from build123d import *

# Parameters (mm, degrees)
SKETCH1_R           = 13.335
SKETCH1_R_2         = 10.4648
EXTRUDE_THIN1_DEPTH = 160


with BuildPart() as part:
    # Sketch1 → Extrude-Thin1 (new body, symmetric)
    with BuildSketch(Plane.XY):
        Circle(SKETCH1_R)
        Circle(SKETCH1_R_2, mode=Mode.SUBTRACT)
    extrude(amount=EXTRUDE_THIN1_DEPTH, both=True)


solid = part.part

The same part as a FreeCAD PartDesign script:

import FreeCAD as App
import Part
import Sketcher
Q = App.Units.Quantity

doc = App.newDocument("Part")
params = doc.addObject("Spreadsheet::Sheet", "Params")
for row, (alias, value) in enumerate([
    ("sketch1_diameter", "1.05 in"),
    ("sketch1_diameter2", "0.824 in"),
    ("pad1_length", "320 mm"),
], start=1):
    params.set(f"A{row}", alias)
    params.set(f"B{row}", "=" + value)
    params.setAlias(f"B{row}", alias)

body = doc.addObject("PartDesign::Body", "Body")

# Sketch on XY plane
sketch1 = doc.addObject("Sketcher::SketchObject", "Sketch")
body.addObject(sketch1)
sketch1.AttachmentSupport = (doc.XY_Plane, [""])
sketch1.MapMode = "FlatFace"
sketch1.addGeometry(Part.Circle(App.Vector(0, 0, 0), App.Vector(0, 0, 1), 13), False)
sketch1.addGeometry(Part.Circle(App.Vector(0, 0, 0), App.Vector(0, 0, 1), 10), False)
sketch1.addConstraint(Sketcher.Constraint("Coincident", 0, 3, -1, 1))
sketch1.addConstraint(Sketcher.Constraint("Coincident", 1, 3, -1, 1))
sketch1.addConstraint(Sketcher.Constraint("Diameter", 0, Q("1.05 in")))
sketch1.addConstraint(Sketcher.Constraint("Diameter", 1, Q("0.824 in")))
sketch1.setExpression("Constraints[2]", "Params.sketch1_diameter")
sketch1.setExpression("Constraints[3]", "Params.sketch1_diameter2")
pad1 = doc.addObject("PartDesign::Pad", "Pad")
body.addObject(pad1)
pad1.Profile = sketch1
pad1.setExpression("Length", "Params.pad1_length")
pad1.Midplane = True

doc.recompute()
